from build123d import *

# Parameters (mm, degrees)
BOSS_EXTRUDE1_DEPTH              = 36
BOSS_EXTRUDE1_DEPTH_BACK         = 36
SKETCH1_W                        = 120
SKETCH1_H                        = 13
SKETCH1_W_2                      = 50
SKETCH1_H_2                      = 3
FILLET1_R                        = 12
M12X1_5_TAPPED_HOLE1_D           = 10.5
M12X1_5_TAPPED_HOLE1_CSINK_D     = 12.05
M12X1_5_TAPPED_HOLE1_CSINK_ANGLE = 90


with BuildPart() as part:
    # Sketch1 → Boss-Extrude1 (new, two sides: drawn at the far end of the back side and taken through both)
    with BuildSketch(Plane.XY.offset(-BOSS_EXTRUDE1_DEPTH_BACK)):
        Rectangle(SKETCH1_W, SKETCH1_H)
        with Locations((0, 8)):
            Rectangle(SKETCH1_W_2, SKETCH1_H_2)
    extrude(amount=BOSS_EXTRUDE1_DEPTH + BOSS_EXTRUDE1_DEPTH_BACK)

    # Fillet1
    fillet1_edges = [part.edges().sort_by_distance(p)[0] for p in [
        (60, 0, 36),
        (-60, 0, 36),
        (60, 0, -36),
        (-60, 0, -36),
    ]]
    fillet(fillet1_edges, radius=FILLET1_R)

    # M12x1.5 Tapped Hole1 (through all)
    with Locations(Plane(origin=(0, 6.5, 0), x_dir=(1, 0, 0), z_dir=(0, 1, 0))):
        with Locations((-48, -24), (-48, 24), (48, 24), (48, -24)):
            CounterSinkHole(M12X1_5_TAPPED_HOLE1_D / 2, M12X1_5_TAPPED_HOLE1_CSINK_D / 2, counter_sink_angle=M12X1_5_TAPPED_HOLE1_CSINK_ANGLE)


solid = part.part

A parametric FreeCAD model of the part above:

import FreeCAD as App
import Part
import Sketcher
from FreeCAD import Vector


def edges_at(feature, points):
    """Names of the edges that pass closest to the given points."""
    edges = feature.Shape.Edges
    near = lambda p: min(range(len(edges)), key=lambda i: edges[i].distToShape(Part.Vertex(*p))[0])
    return sorted({f"Edge{near(p) + 1}" for p in points})

doc = App.newDocument("Part")
body = doc.addObject("PartDesign::Body", "Body")

sketch1 = doc.addObject("Sketcher::SketchObject", "Sketch")
body.addObject(sketch1)
sketch1.AttachmentSupport = (doc.XY_Plane, [""])
sketch1.MapMode = "FlatFace"
sketch1.addGeometry([
    Part.LineSegment(Vector(-60, 6.5, 0), Vector(-60, -6.5, 0)),
    Part.LineSegment(Vector(-60, -6.5, 0), Vector(60, -6.5, 0)),
    Part.LineSegment(Vector(60, -6.5, 0), Vector(60, 6.5, 0)),
    Part.LineSegment(Vector(60, 6.5, 0), Vector(25, 6.5, 0)),
    Part.LineSegment(Vector(25, 6.5, 0), Vector(25, 9.5, 0)),
    Part.LineSegment(Vector(25, 9.5, 0), Vector(-25, 9.5, 0)),
    Part.LineSegment(Vector(-25, 9.5, 0), Vector(-25, 6.5, 0)),
    Part.LineSegment(Vector(-25, 6.5, 0), Vector(-60, 6.5, 0)),
], False)
sketch1.addConstraint([
    Sketcher.Constraint("Coincident", 0, 2, 1, 1),
    Sketcher.Constraint("Coincident", 1, 2, 2, 1),
    Sketcher.Constraint("Coincident", 2, 2, 3, 1),
    Sketcher.Constraint("Coincident", 3, 2, 4, 1),
    Sketcher.Constraint("Coincident", 4, 2, 5, 1),
    Sketcher.Constraint("Coincident", 5, 2, 6, 1),
    Sketcher.Constraint("Coincident", 6, 2, 7, 1),
    Sketcher.Constraint("Coincident", 7, 2, 0, 1),
    Sketcher.Constraint("Vertical", 0),
    Sketcher.Constraint("Horizontal", 1),
    Sketcher.Constraint("Vertical", 2),
    Sketcher.Constraint("Horizontal", 3),
    Sketcher.Constraint("Vertical", 4),
    Sketcher.Constraint("Horizontal", 5),
    Sketcher.Constraint("Vertical", 6),
    Sketcher.Constraint("Horizontal", 7),
    Sketcher.Constraint("Symmetric", 0, 2, 2, 2, -1, 1),
    Sketcher.Constraint("Symmetric", 3, 2, 6, 2, -2),
    Sketcher.Constraint("DistanceX", 1, 1, 1, 2, 120.0),
    Sketcher.Constraint("DistanceX", 3, 2, 3, 1, 35.0),
    Sketcher.Constraint("DistanceY", 0, 2, 0, 1, 13.0),
    Sketcher.Constraint("DistanceY", 4, 1, 4, 2, 3.0),
])
pad1 = doc.addObject("PartDesign::Pad", "Pad")
body.addObject(pad1)
pad1.Profile = sketch1
pad1.Type = "TwoLengths"
pad1.Length = 36
pad1.Length2 = 36
doc.recompute()

fillet = doc.addObject("PartDesign::Fillet", "Fillet")
body.addObject(fillet)
fillet.Base = (pad1, edges_at(pad1, [
    (60, 0, 36),
    (-60, 0, 36),
    (60, 0, -36),
    (-60, 0, -36),
]))
fillet.Radius = 12

sketch2 = doc.addObject("Sketcher::SketchObject", "Sketch001")
body.addObject(sketch2)
sketch2.AttachmentSupport = (doc.XZ_Plane, [""])
sketch2.MapMode = "FlatFace"
sketch2.AttachmentOffset = App.Placement(Vector(0, 0, -6.5), App.Rotation())
sketch2.addGeometry([
    Part.Circle(Vector(-48, 24, 0), Vector(0, 0, 1), 5),
    Part.Circle(Vector(-48, -24, 0), Vector(0, 0, 1), 5),
    Part.Circle(Vector(48, -24, 0), Vector(0, 0, 1), 5),
    Part.Circle(Vector(48, 24, 0), Vector(0, 0, 1), 5),
], False)
sketch2.addConstraint([
    Sketcher.Constraint("Equal", 0, 1),
    Sketcher.Constraint("Equal", 1, 2),
    Sketcher.Constraint("Equal", 2, 3),
    Sketcher.Constraint("Symmetric", 0, 3, 2, 3, -1, 1),
    Sketcher.Constraint("Symmetric", 1, 3, 3, 3, -1, 1),
    Sketcher.Constraint("Symmetric", 1, 3, 2, 3, -2),
    Sketcher.Constraint("Diameter", 0, 10.5),
    Sketcher.Constraint("DistanceX", 0, 3, -1, 1, 48.0),
    Sketcher.Constraint("DistanceY", -1, 1, 0, 3, 24.0),
])
doc.recompute()
hole = doc.addObject("PartDesign::Hole", "Hole")
body.addObject(hole)
hole.Profile = sketch2
hole.ThreadType = "None"
hole.Diameter = 10.5
hole.DepthType = "ThroughAll"
hole.HoleCutType = "Countersink"
hole.HoleCutDiameter = 12.05
hole.HoleCutCountersinkAngle = 90
hole.Reversed = True

doc.recompute()
